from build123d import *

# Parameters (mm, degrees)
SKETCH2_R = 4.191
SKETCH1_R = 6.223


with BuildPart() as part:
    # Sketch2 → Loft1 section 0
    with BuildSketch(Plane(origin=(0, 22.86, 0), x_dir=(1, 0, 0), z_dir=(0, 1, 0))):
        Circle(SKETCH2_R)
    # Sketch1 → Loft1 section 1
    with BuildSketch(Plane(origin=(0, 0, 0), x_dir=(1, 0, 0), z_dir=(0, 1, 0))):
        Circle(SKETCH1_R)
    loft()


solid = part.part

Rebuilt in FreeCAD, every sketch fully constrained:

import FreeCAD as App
import Part
import Sketcher
Q = App.Units.Quantity

doc = App.newDocument("Part")
params = doc.addObject("Spreadsheet::Sheet", "Params")
for row, (alias, value) in enumerate([
    ("sketch1_diameter", "0.33 in"),
    ("sketch2_diameter", "0.49 in"),
], start=1):
    params.set(f"A{row}", alias)
    params.set(f"B{row}", "=" + value)
    params.setAlias(f"B{row}", alias)

body = doc.addObject("PartDesign::Body", "Body")

# Sketch on XZ plane
sketch1 = doc.addObject("Sketcher::SketchObject", "Sketch")
body.addObject(sketch1)
sketch1.AttachmentSupport = (doc.XZ_Plane, [""])
sketch1.MapMode = "FlatFace"
sketch1.AttachmentOffset = App.Placement(App.Vector(0, 0, -0.9 * 25.4), App.Rotation())
sketch1.addGeometry(Part.Circle(App.Vector(0, 0, 0), App.Vector(0, 0, 1), 4.2), False)
sketch1.addConstraint([
    Sketcher.Constraint("Coincident", 0, 3, -1, 1),
    Sketcher.Constraint("Diameter", 0, Q("0.33 in")),
])
sketch1.setExpression("Constraints[1]", "Params.sketch1_diameter")

# Sketch on XZ plane
sketch2 = doc.addObject("Sketcher::SketchObject", "Sketch001")
body.addObject(sketch2)
sketch2.AttachmentSupport = (doc.XZ_Plane, [""])
sketch2.MapMode = "FlatFace"
sketch2.addGeometry(Part.Circle(App.Vector(0, 0, 0), App.Vector(0, 0, 1), 6), False)
sketch2.addConstraint([
    Sketcher.Constraint("Coincident", 0, 3, -1, 1),
    Sketcher.Constraint("Diameter", 0, Q("0.49 in")),
])
sketch2.setExpression("Constraints[1]", "Params.sketch2_diameter")

additiveloft = doc.addObject("PartDesign::AdditiveLoft", "AdditiveLoft")
body.addObject(additiveloft)
additiveloft.Profile = sketch1
additiveloft.Sections = [sketch2]

doc.recompute()
